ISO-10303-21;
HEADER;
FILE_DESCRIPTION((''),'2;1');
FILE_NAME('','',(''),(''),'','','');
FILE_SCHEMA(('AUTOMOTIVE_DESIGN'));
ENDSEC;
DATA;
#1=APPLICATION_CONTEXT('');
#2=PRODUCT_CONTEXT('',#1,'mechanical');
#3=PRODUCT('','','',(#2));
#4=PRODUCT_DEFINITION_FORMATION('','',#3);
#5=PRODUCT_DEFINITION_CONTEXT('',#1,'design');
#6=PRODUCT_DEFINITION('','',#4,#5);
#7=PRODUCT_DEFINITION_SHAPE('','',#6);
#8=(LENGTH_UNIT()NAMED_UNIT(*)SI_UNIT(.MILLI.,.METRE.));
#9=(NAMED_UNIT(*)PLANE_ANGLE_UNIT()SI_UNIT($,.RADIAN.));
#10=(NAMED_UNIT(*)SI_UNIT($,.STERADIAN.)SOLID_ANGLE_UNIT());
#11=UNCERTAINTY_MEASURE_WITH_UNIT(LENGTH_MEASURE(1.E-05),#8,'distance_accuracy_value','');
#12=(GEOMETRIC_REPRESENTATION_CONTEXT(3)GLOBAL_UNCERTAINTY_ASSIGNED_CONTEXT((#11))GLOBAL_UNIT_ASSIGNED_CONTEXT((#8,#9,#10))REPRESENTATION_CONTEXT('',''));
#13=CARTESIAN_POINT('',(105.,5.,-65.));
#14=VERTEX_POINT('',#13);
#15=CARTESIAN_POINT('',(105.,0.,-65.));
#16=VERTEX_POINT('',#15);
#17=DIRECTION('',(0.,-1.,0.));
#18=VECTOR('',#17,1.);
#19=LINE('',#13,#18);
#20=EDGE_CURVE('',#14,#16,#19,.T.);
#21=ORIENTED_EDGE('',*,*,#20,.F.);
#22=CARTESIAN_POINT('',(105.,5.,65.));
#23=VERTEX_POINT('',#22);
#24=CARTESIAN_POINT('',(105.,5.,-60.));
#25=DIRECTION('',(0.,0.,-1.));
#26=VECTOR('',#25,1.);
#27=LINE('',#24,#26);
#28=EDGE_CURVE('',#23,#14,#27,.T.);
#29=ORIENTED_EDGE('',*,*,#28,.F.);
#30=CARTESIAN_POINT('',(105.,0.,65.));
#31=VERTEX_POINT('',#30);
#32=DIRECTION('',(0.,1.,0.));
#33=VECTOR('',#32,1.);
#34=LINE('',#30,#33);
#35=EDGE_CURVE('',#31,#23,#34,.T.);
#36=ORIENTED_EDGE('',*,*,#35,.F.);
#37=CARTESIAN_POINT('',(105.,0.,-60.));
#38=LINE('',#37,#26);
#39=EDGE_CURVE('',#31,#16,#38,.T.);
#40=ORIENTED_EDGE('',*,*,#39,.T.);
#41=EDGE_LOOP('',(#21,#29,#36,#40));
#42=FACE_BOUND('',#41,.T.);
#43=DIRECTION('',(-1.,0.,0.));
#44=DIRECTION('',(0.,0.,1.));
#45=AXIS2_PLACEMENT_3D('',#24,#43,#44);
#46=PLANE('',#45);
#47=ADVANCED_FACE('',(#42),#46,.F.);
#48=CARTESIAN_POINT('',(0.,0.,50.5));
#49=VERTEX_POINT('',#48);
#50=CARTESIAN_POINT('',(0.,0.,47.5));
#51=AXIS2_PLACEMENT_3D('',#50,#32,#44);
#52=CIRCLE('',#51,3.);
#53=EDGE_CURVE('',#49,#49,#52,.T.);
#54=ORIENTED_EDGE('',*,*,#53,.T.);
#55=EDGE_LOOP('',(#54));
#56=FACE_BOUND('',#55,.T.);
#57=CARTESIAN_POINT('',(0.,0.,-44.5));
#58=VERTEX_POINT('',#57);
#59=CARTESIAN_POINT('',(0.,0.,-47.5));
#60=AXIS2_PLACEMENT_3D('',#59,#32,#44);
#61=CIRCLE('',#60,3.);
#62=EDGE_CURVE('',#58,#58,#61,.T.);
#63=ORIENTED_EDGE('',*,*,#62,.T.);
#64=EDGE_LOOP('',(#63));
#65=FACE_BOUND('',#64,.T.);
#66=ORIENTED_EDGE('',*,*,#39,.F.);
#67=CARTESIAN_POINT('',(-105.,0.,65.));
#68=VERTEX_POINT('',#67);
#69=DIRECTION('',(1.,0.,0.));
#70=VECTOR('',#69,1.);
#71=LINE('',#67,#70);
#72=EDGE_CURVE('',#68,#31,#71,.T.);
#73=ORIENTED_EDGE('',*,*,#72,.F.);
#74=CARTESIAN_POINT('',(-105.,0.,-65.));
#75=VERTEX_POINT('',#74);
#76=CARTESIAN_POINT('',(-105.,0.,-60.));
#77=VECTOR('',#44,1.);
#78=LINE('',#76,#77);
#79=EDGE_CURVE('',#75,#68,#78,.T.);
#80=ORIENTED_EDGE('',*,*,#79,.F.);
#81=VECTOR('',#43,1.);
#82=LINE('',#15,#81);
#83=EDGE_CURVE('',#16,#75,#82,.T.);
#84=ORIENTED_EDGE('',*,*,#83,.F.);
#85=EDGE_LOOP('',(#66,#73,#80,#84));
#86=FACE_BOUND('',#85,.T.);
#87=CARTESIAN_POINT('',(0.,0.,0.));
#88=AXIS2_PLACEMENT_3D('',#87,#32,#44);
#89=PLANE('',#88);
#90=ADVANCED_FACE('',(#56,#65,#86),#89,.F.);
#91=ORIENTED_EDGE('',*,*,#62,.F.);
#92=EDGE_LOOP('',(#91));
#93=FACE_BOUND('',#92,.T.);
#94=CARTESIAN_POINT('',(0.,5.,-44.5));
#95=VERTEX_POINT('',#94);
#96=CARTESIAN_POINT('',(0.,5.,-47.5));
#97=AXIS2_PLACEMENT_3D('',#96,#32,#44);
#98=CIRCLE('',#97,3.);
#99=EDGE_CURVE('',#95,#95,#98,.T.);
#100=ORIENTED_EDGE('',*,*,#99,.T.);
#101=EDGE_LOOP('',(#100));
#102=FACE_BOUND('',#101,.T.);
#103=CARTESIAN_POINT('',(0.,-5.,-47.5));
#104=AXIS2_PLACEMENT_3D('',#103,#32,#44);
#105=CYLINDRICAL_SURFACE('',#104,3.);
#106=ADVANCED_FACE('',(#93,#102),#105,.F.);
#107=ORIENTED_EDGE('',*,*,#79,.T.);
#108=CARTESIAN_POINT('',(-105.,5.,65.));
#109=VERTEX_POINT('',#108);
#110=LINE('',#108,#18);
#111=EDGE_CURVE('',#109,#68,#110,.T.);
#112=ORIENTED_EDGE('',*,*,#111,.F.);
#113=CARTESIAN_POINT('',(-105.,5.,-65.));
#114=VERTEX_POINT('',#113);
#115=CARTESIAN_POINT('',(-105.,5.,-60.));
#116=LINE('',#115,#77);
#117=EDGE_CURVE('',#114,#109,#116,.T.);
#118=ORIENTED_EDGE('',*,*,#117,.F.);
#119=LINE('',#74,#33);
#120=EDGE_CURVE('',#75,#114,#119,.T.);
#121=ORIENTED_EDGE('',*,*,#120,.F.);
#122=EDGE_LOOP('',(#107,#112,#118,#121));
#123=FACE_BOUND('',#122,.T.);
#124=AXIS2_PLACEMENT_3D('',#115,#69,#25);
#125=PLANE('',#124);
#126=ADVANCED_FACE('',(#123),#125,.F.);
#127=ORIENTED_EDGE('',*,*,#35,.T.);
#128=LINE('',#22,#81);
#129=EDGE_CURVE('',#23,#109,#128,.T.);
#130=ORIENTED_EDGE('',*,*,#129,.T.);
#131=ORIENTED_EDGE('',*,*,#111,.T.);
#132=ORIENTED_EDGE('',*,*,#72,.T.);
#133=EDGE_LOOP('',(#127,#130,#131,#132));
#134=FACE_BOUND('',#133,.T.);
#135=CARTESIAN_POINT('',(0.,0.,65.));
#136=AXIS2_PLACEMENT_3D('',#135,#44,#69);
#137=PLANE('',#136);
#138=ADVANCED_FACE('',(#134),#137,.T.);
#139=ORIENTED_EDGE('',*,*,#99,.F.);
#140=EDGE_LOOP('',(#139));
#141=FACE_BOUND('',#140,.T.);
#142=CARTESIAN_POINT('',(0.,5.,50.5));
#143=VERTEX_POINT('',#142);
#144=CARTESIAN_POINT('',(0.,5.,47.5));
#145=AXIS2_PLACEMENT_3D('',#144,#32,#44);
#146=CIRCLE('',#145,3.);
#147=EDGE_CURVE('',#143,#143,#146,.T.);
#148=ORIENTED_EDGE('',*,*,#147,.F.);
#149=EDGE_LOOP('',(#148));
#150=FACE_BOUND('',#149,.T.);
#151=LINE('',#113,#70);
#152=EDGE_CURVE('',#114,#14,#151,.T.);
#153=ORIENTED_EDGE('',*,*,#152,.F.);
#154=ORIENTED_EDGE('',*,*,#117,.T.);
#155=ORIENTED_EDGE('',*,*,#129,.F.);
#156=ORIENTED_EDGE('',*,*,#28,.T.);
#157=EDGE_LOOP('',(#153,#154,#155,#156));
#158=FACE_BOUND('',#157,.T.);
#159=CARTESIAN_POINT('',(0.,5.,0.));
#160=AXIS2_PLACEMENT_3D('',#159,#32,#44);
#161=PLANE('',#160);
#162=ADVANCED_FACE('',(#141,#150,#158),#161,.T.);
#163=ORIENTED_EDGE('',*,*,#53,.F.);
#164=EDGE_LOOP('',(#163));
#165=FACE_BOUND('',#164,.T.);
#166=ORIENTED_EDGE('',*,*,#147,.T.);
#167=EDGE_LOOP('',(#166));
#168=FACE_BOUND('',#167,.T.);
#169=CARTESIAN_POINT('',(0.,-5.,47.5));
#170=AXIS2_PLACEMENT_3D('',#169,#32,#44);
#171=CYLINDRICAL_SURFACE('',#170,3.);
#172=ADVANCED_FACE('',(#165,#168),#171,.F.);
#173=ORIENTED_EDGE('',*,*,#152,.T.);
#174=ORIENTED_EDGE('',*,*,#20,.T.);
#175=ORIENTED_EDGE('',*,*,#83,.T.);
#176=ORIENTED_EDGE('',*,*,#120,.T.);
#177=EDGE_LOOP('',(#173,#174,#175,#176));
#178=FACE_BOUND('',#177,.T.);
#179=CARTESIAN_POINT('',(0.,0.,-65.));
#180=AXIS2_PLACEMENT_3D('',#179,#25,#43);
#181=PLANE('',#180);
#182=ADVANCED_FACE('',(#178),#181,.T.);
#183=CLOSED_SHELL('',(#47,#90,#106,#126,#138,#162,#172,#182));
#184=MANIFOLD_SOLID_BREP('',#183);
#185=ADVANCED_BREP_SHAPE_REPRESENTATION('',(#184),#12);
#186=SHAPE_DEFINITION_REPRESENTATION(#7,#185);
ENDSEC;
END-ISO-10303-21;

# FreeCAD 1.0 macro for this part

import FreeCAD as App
import Part
import Sketcher
from FreeCAD import Vector


def add_polygon(sketch, points):
    """Adds a closed chain of lines whose ends are joined by coincident constraints."""
    first, n = sketch.GeometryCount, len(points)
    for a, b in zip(points, points[1:] + points[:1]):
        sketch.addGeometry(Part.LineSegment(App.Vector(*a, 0), App.Vector(*b, 0)), False)
    for i in range(n):
        sketch.addConstraint(Sketcher.Constraint("Coincident", first + i, 2, first + (i + 1) % n, 1))

doc = App.newDocument("Part")
params = doc.addObject("Spreadsheet::Sheet", "Params")
for row, (alias, value) in enumerate([
    ("sketch1_width", "210 mm"),
    ("sketch1_height", "120 mm"),
    ("pad1_length", "5 mm"),
    ("sketch2_diameter", "6 mm"),
    ("pocket1_length", "10 mm"),
    ("sketch3_width", "210 mm"),
    ("sketch3_height", "5 mm"),
    ("pad2_length", "5 mm"),
    ("sketch4_width", "210 mm"),
    ("sketch4_height", "5 mm"),
    ("pad3_length", "5 mm"),
], start=1):
    params.set(f"A{row}", alias)
    params.set(f"B{row}", "=" + value)
    params.setAlias(f"B{row}", alias)

body = doc.addObject("PartDesign::Body", "Body")

sketch1 = body.newObject("Sketcher::SketchObject", "Sketch")
sketch1.AttachmentSupport = (doc.getObject("XZ_Plane"), [""])
sketch1.MapMode = "FlatFace"
add_polygon(sketch1, [(-105, -60), (-105, 60), (105, 60), (105, -60)])
sketch1.addConstraint([
    Sketcher.Constraint("Vertical", 0),
    Sketcher.Constraint("Horizontal", 1),
    Sketcher.Constraint("Vertical", 2),
    Sketcher.Constraint("Horizontal", 3),
    Sketcher.Constraint("Symmetric", 0, 2, 2, 2, -1, 1),
    Sketcher.Constraint("DistanceX", 1, 1, 1, 2, 210.0),
    Sketcher.Constraint("DistanceY", 0, 1, 0, 2, 120.0),
])
sketch1.setExpression("Constraints[9]", "Params.sketch1_width")
sketch1.setExpression("Constraints[10]", "Params.sketch1_height")
pad1 = body.newObject("PartDesign::Pad", "Pad")
pad1.Profile = sketch1
pad1.setExpression("Length", "Params.pad1_length")
pad1.Reversed = True

sketch2 = body.newObject("Sketcher::SketchObject", "Sketch001")
sketch2.AttachmentSupport = (doc.getObject("XZ_Plane"), [""])
sketch2.MapMode = "FlatFace"
sketch2.AttachmentOffset = App.Placement(Vector(0, 0, -5), App.Rotation())
sketch2.addGeometry([
    Part.Circle(Vector(0, -47.5, 0), Vector(0, 0, 1), 3),
    Part.Circle(Vector(0, 47.5, 0), Vector(0, 0, 1), 3),
], False)
sketch2.addConstraint([
    Sketcher.Constraint("Equal", 0, 1),
    Sketcher.Constraint("Symmetric", 0, 3, 1, 3, -1, 1),
    Sketcher.Constraint("PointOnObject", 0, 3, -2),
    Sketcher.Constraint("Diameter", 0, 6.0),
    Sketcher.Constraint("DistanceY", 0, 3, 1, 3, 95.0),
])
sketch2.setExpression("Constraints[3]", "Params.sketch2_diameter")
pocket1 = body.newObject("PartDesign::Pocket", "Pocket")
pocket1.Profile = sketch2
pocket1.setExpression("Length", "Params.pocket1_length")
pocket1.Reversed = True

sketch3 = body.newObject("Sketcher::SketchObject", "Sketch002")
sketch3.AttachmentSupport = (doc.getObject("XY_Plane"), [""])
sketch3.MapMode = "FlatFace"
sketch3.AttachmentOffset = App.Placement(Vector(0, 0, 60), App.Rotation())
add_polygon(sketch3, [(-105, 5), (-105, 0), (105, 0), (105, 5)])
sketch3.addConstraint([
    Sketcher.Constraint("Vertical", 0),
    Sketcher.Constraint("Horizontal", 1),
    Sketcher.Constraint("Vertical", 2),
    Sketcher.Constraint("Horizontal", 3),
    Sketcher.Constraint("Symmetric", 0, 2, 1, 2, -1, 1),
    Sketcher.Constraint("DistanceX", 1, 1, 1, 2, 210.0),
    Sketcher.Constraint("DistanceY", 0, 2, 0, 1, 5.0),
])
sketch3.setExpression("Constraints[9]", "Params.sketch3_width")
sketch3.setExpression("Constraints[10]", "Params.sketch3_height")
pad2 = body.newObject("PartDesign::Pad", "Pad001")
pad2.Profile = sketch3
pad2.setExpression("Length", "Params.pad2_length")

sketch4 = body.newObject("Sketcher::SketchObject", "Sketch003")
sketch4.AttachmentSupport = (doc.getObject("XY_Plane"), [""])
sketch4.MapMode = "FlatFace"
sketch4.AttachmentOffset = App.Placement(Vector(0, 0, -60), App.Rotation())
add_polygon(sketch4, [(105, 5), (105, 0), (-105, 0), (-105, 5)])
sketch4.addConstraint([
    Sketcher.Constraint("Vertical", 0),
    Sketcher.Constraint("Horizontal", 1),
    Sketcher.Constraint("Vertical", 2),
    Sketcher.Constraint("Horizontal", 3),
    Sketcher.Constraint("Symmetric", 0, 2, 1, 2, -1, 1),
    Sketcher.Constraint("DistanceX", 1, 2, 1, 1, 210.0),
    Sketcher.Constraint("DistanceY", 0, 2, 0, 1, 5.0),
])
sketch4.setExpression("Constraints[9]", "Params.sketch4_width")
sketch4.setExpression("Constraints[10]", "Params.sketch4_height")
pad3 = body.newObject("PartDesign::Pad", "Pad002")
pad3.Profile = sketch4
pad3.setExpression("Length", "Params.pad3_length")
pad3.Reversed = True

doc.recompute()
